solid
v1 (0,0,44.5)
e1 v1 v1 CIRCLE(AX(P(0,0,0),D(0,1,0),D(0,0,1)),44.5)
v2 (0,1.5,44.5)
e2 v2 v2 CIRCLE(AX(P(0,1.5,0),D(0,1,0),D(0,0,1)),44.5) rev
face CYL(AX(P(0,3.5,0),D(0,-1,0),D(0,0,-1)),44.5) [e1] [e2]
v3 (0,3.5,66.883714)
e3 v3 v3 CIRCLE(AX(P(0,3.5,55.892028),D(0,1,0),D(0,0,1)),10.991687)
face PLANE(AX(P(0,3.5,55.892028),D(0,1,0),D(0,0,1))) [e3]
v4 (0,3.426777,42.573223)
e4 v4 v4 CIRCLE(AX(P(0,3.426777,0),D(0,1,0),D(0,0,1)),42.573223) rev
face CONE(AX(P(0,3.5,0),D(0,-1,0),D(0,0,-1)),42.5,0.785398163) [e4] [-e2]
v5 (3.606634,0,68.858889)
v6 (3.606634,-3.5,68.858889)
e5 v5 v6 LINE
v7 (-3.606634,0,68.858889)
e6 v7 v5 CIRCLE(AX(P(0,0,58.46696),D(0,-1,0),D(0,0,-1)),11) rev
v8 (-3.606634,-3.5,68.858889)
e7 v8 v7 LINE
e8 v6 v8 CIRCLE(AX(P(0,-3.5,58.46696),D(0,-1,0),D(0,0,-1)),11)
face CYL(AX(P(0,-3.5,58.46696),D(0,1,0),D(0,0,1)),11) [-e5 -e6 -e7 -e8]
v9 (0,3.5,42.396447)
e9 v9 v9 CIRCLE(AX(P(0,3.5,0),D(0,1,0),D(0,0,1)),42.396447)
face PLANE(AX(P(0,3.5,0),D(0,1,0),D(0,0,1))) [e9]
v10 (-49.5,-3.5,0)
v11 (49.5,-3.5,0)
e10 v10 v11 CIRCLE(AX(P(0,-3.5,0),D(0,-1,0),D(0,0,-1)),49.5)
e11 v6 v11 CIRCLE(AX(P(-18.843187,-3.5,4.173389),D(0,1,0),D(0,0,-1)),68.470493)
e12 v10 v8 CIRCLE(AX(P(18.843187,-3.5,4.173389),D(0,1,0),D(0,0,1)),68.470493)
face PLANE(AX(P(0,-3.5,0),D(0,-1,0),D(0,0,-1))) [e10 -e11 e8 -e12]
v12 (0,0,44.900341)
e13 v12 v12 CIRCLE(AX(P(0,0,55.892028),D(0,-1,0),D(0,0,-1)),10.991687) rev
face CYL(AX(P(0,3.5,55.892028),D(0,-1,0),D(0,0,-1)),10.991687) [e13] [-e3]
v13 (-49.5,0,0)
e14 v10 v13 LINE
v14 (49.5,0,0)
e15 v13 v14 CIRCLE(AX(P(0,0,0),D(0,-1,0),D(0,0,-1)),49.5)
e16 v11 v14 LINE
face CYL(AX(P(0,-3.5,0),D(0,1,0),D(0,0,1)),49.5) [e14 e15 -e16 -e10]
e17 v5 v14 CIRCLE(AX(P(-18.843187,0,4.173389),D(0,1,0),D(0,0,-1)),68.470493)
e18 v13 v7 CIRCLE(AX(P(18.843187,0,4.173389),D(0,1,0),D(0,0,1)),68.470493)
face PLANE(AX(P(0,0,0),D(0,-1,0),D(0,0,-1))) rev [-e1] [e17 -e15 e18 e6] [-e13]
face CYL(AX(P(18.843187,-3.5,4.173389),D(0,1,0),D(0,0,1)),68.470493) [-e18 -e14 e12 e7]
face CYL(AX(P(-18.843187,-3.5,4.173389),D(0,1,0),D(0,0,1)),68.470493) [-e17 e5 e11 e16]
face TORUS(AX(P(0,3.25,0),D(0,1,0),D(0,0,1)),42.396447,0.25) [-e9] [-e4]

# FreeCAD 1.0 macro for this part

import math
import FreeCAD as App
import Part
import Sketcher

V = App.Vector
Q = App.Units.Quantity


def edges_at(feature, points):
    """Names of the edges that pass closest to the given points."""
    edges = feature.Shape.Edges
    near = lambda p: min(range(len(edges)), key=lambda i: edges[i].distToShape(Part.Vertex(*p))[0])
    return sorted({f"Edge{near(p) + 1}" for p in points})

doc = App.newDocument("Part")
body = doc.addObject("PartDesign::Body", "Body")

# Sketch on XZ plane
sketch1 = body.newObject("Sketcher::SketchObject", "Sketch")
sketch1.AttachmentSupport = (doc.getObject("XZ_Plane"), [""])
sketch1.MapMode = "FlatFace"
sketch1.addGeometry(Part.Circle(V(0, 0, 0), V(0, 0, 1), 44), False)
sketch1.addConstraint(Sketcher.Constraint("Coincident", 0, 3, -1, 1))
sketch1.addConstraint(Sketcher.Constraint("Diameter", 0, Q("89 mm")))
pad1 = body.newObject("PartDesign::Pad", "Pad")
pad1.Profile = sketch1
pad1.Length = 3.5
pad1.Reversed = True
doc.recompute()

chamfer = body.newObject("PartDesign::Chamfer", "Chamfer")
chamfer.Base = (pad1, edges_at(pad1, [(-44.5, 3.5, 0)]))
chamfer.Size = 2

# Sketch on XZ plane
sketch2 = body.newObject("Sketcher::SketchObject", "Sketch001")
sketch2.AttachmentSupport = (doc.getObject("XZ_Plane"), [""])
sketch2.MapMode = "FlatFace"
sketch2.addGeometry(Part.Circle(V(0, 0, 0), V(0, 0, 1), 50), False)
sketch2.addConstraint(Sketcher.Constraint("Coincident", 0, 3, -1, 1))
sketch2.addConstraint(Sketcher.Constraint("Diameter", 0, Q("99 mm")))
pad2 = body.newObject("PartDesign::Pad", "Pad001")
pad2.Profile = sketch2
pad2.Length = 3.5

# Sketch on XZ plane
sketch3 = body.newObject("Sketcher::SketchObject", "Sketch002")
sketch3.AttachmentSupport = (doc.getObject("XZ_Plane"), [""])
sketch3.MapMode = "FlatFace"
sketch3.addGeometry(Part.ArcOfCircle(Part.Circle(V(-19, 4, 0), V(0, 0, 1), 68), math.radians(-3), math.radians(74)), False)
sketch3.addGeometry(Part.ArcOfCircle(Part.Circle(V(0, 0, 0), V(0, 0, 1), 50), math.radians(0), math.radians(180)), False)
sketch3.addGeometry(Part.ArcOfCircle(Part.Circle(V(19, 4, 0), V(0, 0, 1), 68), math.radians(106), math.radians(183)), False)
sketch3.addConstraint(Sketcher.Constraint("Coincident", 0, 1, 1, 1))
sketch3.addConstraint(Sketcher.Constraint("Coincident", 1, 2, 2, 2))
sketch3.addConstraint(Sketcher.Constraint("Coincident", 2, 1, 0, 2))
sketch3.addConstraint(Sketcher.Constraint("Coincident", 1, 3, -1, 1))
sketch3.addConstraint(Sketcher.Constraint("Equal", 0, 2))
sketch3.addConstraint(Sketcher.Constraint("Symmetric", 0, 3, 2, 3, -2))
sketch3.addConstraint(Sketcher.Constraint("PointOnObject", 0, 1, -1))
sketch3.addConstraint(Sketcher.Constraint("Radius", 1, Q("49.5 mm")))
sketch3.addConstraint(Sketcher.Constraint("DistanceY", -1, 1, 2, 1, Q("70 mm")))
sketch3.addConstraint(Sketcher.Constraint("Radius", 0, Q("68.470493 mm")))
pad3 = body.newObject("PartDesign::Pad", "Pad002")
pad3.Profile = sketch3
pad3.Length = 3.5

# Sketch on XZ plane
sketch4 = body.newObject("Sketcher::SketchObject", "Sketch003")
sketch4.AttachmentSupport = (doc.getObject("XZ_Plane"), [""])
sketch4.MapMode = "FlatFace"
sketch4.addGeometry(Part.Circle(V(0, 56, 0), V(0, 0, 1), 11), False)
sketch4.addConstraint(Sketcher.Constraint("PointOnObject", 0, 3, -2))
sketch4.addConstraint(Sketcher.Constraint("Diameter", 0, Q("21.983374 mm")))
sketch4.addConstraint(Sketcher.Constraint("DistanceY", -1, 1, 0, 3, Q("55.892028 mm")))
pad4 = body.newObject("PartDesign::Pad", "Pad003")
pad4.Profile = sketch4
pad4.Length = 3.5
pad4.Reversed = True
doc.recompute()

fillet = body.newObject("PartDesign::Fillet", "Fillet")
fillet.Base = (pad4, edges_at(pad4, [(0, -1.75, 70)]))
fillet.Radius = 11
doc.recompute()

fillet2 = body.newObject("PartDesign::Fillet", "Fillet001")
fillet2.Base = (fillet, edges_at(fillet, [(-42.5, 3.5, 0)]))
fillet2.Radius = 0.25

doc.recompute()
